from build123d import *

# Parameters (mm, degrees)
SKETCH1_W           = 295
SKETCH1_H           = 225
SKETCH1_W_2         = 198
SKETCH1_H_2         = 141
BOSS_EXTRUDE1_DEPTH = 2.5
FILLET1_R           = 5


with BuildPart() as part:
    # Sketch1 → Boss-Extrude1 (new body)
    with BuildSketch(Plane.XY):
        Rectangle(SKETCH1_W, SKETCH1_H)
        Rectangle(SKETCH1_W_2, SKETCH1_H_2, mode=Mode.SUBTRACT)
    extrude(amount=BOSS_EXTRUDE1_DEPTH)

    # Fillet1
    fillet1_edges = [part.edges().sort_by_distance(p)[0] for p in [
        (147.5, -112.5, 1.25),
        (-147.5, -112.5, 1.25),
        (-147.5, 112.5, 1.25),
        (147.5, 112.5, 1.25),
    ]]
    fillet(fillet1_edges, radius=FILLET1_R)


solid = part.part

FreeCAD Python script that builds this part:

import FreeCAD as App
import Part
import Sketcher
Q = App.Units.Quantity


def edges_at(feature, points):
    """Names of the edges that pass closest to the given points."""
    edges = feature.Shape.Edges
    near = lambda p: min(range(len(edges)), key=lambda i: edges[i].distToShape(Part.Vertex(*p))[0])
    return sorted({f"Edge{near(p) + 1}" for p in points})

doc = App.newDocument("Part")
params = doc.addObject("Spreadsheet::Sheet", "Params")
for row, (alias, value) in enumerate([
    ("sketch1_width", "295 mm"),
    ("sketch1_width2", "198 mm"),
    ("sketch1_height", "225 mm"),
    ("sketch1_height2", "141 mm"),
    ("pad1_length", "2.5 mm"),
    ("fillet_radius", "5 mm"),
], start=1):
    params.set(f"A{row}", alias)
    params.set(f"B{row}", "=" + value)
    params.setAlias(f"B{row}", alias)

body = doc.addObject("PartDesign::Body", "Body")

# Sketch on XY plane
sketch1 = body.newObject("Sketcher::SketchObject", "Sketch")
sketch1.AttachmentSupport = (doc.getObject("XY_Plane"), [""])
sketch1.MapMode = "FlatFace"
sketch1.addGeometry([
    Part.LineSegment(App.Vector(-148, 112, 0), App.Vector(-148, -112, 0)),  # 0
    Part.LineSegment(App.Vector(-148, -112, 0), App.Vector(148, -112, 0)),  # 1
    Part.LineSegment(App.Vector(148, -112, 0), App.Vector(148, 112, 0)),  # 2
    Part.LineSegment(App.Vector(148, 112, 0), App.Vector(-148, 112, 0)),  # 3
    Part.LineSegment(App.Vector(99, -70, 0), App.Vector(-99, -70, 0)),  # 4
    Part.LineSegment(App.Vector(-99, -70, 0), App.Vector(-99, 70, 0)),  # 5
    Part.LineSegment(App.Vector(-99, 70, 0), App.Vector(99, 70, 0)),  # 6
    Part.LineSegment(App.Vector(99, 70, 0), App.Vector(99, -70, 0)),  # 7
], False)
sketch1.addConstraint([
    Sketcher.Constraint("Coincident", 0, 2, 1, 1),
    Sketcher.Constraint("Coincident", 1, 2, 2, 1),
    Sketcher.Constraint("Coincident", 2, 2, 3, 1),
    Sketcher.Constraint("Coincident", 3, 2, 0, 1),
    Sketcher.Constraint("Coincident", 4, 2, 5, 1),
    Sketcher.Constraint("Coincident", 5, 2, 6, 1),
    Sketcher.Constraint("Coincident", 6, 2, 7, 1),
    Sketcher.Constraint("Coincident", 7, 2, 4, 1),
    Sketcher.Constraint("Vertical", 0),
    Sketcher.Constraint("Horizontal", 1),
    Sketcher.Constraint("Vertical", 2),
    Sketcher.Constraint("Horizontal", 3),
    Sketcher.Constraint("Horizontal", 4),
    Sketcher.Constraint("Vertical", 5),
    Sketcher.Constraint("Horizontal", 6),
    Sketcher.Constraint("Vertical", 7),
    Sketcher.Constraint("Symmetric", 0, 2, 2, 2, -1, 1),
    Sketcher.Constraint("Symmetric", 4, 2, 6, 2, -1, 1),
    Sketcher.Constraint("DistanceX", 1, 1, 1, 2, Q("295 mm")),
    Sketcher.Constraint("DistanceX", 4, 2, 4, 1, Q("198 mm")),
    Sketcher.Constraint("DistanceY", 0, 2, 0, 1, Q("225 mm")),
    Sketcher.Constraint("DistanceY", 5, 1, 5, 2, Q("141 mm")),
])
sketch1.setExpression("Constraints[18]", "Params.sketch1_width")
sketch1.setExpression("Constraints[19]", "Params.sketch1_width2")
sketch1.setExpression("Constraints[20]", "Params.sketch1_height")
sketch1.setExpression("Constraints[21]", "Params.sketch1_height2")
pad1 = body.newObject("PartDesign::Pad", "Pad")
pad1.Profile = sketch1
pad1.setExpression("Length", "Params.pad1_length")
doc.recompute()

fillet = body.newObject("PartDesign::Fillet", "Fillet")
fillet.Base = (pad1, edges_at(pad1, [
    (147.5, -112.5, 1.25),
    (-147.5, -112.5, 1.25),
    (-147.5, 112.5, 1.25),
    (147.5, 112.5, 1.25),
]))
fillet.setExpression("Radius", "Params.fillet_radius")

doc.recompute()
